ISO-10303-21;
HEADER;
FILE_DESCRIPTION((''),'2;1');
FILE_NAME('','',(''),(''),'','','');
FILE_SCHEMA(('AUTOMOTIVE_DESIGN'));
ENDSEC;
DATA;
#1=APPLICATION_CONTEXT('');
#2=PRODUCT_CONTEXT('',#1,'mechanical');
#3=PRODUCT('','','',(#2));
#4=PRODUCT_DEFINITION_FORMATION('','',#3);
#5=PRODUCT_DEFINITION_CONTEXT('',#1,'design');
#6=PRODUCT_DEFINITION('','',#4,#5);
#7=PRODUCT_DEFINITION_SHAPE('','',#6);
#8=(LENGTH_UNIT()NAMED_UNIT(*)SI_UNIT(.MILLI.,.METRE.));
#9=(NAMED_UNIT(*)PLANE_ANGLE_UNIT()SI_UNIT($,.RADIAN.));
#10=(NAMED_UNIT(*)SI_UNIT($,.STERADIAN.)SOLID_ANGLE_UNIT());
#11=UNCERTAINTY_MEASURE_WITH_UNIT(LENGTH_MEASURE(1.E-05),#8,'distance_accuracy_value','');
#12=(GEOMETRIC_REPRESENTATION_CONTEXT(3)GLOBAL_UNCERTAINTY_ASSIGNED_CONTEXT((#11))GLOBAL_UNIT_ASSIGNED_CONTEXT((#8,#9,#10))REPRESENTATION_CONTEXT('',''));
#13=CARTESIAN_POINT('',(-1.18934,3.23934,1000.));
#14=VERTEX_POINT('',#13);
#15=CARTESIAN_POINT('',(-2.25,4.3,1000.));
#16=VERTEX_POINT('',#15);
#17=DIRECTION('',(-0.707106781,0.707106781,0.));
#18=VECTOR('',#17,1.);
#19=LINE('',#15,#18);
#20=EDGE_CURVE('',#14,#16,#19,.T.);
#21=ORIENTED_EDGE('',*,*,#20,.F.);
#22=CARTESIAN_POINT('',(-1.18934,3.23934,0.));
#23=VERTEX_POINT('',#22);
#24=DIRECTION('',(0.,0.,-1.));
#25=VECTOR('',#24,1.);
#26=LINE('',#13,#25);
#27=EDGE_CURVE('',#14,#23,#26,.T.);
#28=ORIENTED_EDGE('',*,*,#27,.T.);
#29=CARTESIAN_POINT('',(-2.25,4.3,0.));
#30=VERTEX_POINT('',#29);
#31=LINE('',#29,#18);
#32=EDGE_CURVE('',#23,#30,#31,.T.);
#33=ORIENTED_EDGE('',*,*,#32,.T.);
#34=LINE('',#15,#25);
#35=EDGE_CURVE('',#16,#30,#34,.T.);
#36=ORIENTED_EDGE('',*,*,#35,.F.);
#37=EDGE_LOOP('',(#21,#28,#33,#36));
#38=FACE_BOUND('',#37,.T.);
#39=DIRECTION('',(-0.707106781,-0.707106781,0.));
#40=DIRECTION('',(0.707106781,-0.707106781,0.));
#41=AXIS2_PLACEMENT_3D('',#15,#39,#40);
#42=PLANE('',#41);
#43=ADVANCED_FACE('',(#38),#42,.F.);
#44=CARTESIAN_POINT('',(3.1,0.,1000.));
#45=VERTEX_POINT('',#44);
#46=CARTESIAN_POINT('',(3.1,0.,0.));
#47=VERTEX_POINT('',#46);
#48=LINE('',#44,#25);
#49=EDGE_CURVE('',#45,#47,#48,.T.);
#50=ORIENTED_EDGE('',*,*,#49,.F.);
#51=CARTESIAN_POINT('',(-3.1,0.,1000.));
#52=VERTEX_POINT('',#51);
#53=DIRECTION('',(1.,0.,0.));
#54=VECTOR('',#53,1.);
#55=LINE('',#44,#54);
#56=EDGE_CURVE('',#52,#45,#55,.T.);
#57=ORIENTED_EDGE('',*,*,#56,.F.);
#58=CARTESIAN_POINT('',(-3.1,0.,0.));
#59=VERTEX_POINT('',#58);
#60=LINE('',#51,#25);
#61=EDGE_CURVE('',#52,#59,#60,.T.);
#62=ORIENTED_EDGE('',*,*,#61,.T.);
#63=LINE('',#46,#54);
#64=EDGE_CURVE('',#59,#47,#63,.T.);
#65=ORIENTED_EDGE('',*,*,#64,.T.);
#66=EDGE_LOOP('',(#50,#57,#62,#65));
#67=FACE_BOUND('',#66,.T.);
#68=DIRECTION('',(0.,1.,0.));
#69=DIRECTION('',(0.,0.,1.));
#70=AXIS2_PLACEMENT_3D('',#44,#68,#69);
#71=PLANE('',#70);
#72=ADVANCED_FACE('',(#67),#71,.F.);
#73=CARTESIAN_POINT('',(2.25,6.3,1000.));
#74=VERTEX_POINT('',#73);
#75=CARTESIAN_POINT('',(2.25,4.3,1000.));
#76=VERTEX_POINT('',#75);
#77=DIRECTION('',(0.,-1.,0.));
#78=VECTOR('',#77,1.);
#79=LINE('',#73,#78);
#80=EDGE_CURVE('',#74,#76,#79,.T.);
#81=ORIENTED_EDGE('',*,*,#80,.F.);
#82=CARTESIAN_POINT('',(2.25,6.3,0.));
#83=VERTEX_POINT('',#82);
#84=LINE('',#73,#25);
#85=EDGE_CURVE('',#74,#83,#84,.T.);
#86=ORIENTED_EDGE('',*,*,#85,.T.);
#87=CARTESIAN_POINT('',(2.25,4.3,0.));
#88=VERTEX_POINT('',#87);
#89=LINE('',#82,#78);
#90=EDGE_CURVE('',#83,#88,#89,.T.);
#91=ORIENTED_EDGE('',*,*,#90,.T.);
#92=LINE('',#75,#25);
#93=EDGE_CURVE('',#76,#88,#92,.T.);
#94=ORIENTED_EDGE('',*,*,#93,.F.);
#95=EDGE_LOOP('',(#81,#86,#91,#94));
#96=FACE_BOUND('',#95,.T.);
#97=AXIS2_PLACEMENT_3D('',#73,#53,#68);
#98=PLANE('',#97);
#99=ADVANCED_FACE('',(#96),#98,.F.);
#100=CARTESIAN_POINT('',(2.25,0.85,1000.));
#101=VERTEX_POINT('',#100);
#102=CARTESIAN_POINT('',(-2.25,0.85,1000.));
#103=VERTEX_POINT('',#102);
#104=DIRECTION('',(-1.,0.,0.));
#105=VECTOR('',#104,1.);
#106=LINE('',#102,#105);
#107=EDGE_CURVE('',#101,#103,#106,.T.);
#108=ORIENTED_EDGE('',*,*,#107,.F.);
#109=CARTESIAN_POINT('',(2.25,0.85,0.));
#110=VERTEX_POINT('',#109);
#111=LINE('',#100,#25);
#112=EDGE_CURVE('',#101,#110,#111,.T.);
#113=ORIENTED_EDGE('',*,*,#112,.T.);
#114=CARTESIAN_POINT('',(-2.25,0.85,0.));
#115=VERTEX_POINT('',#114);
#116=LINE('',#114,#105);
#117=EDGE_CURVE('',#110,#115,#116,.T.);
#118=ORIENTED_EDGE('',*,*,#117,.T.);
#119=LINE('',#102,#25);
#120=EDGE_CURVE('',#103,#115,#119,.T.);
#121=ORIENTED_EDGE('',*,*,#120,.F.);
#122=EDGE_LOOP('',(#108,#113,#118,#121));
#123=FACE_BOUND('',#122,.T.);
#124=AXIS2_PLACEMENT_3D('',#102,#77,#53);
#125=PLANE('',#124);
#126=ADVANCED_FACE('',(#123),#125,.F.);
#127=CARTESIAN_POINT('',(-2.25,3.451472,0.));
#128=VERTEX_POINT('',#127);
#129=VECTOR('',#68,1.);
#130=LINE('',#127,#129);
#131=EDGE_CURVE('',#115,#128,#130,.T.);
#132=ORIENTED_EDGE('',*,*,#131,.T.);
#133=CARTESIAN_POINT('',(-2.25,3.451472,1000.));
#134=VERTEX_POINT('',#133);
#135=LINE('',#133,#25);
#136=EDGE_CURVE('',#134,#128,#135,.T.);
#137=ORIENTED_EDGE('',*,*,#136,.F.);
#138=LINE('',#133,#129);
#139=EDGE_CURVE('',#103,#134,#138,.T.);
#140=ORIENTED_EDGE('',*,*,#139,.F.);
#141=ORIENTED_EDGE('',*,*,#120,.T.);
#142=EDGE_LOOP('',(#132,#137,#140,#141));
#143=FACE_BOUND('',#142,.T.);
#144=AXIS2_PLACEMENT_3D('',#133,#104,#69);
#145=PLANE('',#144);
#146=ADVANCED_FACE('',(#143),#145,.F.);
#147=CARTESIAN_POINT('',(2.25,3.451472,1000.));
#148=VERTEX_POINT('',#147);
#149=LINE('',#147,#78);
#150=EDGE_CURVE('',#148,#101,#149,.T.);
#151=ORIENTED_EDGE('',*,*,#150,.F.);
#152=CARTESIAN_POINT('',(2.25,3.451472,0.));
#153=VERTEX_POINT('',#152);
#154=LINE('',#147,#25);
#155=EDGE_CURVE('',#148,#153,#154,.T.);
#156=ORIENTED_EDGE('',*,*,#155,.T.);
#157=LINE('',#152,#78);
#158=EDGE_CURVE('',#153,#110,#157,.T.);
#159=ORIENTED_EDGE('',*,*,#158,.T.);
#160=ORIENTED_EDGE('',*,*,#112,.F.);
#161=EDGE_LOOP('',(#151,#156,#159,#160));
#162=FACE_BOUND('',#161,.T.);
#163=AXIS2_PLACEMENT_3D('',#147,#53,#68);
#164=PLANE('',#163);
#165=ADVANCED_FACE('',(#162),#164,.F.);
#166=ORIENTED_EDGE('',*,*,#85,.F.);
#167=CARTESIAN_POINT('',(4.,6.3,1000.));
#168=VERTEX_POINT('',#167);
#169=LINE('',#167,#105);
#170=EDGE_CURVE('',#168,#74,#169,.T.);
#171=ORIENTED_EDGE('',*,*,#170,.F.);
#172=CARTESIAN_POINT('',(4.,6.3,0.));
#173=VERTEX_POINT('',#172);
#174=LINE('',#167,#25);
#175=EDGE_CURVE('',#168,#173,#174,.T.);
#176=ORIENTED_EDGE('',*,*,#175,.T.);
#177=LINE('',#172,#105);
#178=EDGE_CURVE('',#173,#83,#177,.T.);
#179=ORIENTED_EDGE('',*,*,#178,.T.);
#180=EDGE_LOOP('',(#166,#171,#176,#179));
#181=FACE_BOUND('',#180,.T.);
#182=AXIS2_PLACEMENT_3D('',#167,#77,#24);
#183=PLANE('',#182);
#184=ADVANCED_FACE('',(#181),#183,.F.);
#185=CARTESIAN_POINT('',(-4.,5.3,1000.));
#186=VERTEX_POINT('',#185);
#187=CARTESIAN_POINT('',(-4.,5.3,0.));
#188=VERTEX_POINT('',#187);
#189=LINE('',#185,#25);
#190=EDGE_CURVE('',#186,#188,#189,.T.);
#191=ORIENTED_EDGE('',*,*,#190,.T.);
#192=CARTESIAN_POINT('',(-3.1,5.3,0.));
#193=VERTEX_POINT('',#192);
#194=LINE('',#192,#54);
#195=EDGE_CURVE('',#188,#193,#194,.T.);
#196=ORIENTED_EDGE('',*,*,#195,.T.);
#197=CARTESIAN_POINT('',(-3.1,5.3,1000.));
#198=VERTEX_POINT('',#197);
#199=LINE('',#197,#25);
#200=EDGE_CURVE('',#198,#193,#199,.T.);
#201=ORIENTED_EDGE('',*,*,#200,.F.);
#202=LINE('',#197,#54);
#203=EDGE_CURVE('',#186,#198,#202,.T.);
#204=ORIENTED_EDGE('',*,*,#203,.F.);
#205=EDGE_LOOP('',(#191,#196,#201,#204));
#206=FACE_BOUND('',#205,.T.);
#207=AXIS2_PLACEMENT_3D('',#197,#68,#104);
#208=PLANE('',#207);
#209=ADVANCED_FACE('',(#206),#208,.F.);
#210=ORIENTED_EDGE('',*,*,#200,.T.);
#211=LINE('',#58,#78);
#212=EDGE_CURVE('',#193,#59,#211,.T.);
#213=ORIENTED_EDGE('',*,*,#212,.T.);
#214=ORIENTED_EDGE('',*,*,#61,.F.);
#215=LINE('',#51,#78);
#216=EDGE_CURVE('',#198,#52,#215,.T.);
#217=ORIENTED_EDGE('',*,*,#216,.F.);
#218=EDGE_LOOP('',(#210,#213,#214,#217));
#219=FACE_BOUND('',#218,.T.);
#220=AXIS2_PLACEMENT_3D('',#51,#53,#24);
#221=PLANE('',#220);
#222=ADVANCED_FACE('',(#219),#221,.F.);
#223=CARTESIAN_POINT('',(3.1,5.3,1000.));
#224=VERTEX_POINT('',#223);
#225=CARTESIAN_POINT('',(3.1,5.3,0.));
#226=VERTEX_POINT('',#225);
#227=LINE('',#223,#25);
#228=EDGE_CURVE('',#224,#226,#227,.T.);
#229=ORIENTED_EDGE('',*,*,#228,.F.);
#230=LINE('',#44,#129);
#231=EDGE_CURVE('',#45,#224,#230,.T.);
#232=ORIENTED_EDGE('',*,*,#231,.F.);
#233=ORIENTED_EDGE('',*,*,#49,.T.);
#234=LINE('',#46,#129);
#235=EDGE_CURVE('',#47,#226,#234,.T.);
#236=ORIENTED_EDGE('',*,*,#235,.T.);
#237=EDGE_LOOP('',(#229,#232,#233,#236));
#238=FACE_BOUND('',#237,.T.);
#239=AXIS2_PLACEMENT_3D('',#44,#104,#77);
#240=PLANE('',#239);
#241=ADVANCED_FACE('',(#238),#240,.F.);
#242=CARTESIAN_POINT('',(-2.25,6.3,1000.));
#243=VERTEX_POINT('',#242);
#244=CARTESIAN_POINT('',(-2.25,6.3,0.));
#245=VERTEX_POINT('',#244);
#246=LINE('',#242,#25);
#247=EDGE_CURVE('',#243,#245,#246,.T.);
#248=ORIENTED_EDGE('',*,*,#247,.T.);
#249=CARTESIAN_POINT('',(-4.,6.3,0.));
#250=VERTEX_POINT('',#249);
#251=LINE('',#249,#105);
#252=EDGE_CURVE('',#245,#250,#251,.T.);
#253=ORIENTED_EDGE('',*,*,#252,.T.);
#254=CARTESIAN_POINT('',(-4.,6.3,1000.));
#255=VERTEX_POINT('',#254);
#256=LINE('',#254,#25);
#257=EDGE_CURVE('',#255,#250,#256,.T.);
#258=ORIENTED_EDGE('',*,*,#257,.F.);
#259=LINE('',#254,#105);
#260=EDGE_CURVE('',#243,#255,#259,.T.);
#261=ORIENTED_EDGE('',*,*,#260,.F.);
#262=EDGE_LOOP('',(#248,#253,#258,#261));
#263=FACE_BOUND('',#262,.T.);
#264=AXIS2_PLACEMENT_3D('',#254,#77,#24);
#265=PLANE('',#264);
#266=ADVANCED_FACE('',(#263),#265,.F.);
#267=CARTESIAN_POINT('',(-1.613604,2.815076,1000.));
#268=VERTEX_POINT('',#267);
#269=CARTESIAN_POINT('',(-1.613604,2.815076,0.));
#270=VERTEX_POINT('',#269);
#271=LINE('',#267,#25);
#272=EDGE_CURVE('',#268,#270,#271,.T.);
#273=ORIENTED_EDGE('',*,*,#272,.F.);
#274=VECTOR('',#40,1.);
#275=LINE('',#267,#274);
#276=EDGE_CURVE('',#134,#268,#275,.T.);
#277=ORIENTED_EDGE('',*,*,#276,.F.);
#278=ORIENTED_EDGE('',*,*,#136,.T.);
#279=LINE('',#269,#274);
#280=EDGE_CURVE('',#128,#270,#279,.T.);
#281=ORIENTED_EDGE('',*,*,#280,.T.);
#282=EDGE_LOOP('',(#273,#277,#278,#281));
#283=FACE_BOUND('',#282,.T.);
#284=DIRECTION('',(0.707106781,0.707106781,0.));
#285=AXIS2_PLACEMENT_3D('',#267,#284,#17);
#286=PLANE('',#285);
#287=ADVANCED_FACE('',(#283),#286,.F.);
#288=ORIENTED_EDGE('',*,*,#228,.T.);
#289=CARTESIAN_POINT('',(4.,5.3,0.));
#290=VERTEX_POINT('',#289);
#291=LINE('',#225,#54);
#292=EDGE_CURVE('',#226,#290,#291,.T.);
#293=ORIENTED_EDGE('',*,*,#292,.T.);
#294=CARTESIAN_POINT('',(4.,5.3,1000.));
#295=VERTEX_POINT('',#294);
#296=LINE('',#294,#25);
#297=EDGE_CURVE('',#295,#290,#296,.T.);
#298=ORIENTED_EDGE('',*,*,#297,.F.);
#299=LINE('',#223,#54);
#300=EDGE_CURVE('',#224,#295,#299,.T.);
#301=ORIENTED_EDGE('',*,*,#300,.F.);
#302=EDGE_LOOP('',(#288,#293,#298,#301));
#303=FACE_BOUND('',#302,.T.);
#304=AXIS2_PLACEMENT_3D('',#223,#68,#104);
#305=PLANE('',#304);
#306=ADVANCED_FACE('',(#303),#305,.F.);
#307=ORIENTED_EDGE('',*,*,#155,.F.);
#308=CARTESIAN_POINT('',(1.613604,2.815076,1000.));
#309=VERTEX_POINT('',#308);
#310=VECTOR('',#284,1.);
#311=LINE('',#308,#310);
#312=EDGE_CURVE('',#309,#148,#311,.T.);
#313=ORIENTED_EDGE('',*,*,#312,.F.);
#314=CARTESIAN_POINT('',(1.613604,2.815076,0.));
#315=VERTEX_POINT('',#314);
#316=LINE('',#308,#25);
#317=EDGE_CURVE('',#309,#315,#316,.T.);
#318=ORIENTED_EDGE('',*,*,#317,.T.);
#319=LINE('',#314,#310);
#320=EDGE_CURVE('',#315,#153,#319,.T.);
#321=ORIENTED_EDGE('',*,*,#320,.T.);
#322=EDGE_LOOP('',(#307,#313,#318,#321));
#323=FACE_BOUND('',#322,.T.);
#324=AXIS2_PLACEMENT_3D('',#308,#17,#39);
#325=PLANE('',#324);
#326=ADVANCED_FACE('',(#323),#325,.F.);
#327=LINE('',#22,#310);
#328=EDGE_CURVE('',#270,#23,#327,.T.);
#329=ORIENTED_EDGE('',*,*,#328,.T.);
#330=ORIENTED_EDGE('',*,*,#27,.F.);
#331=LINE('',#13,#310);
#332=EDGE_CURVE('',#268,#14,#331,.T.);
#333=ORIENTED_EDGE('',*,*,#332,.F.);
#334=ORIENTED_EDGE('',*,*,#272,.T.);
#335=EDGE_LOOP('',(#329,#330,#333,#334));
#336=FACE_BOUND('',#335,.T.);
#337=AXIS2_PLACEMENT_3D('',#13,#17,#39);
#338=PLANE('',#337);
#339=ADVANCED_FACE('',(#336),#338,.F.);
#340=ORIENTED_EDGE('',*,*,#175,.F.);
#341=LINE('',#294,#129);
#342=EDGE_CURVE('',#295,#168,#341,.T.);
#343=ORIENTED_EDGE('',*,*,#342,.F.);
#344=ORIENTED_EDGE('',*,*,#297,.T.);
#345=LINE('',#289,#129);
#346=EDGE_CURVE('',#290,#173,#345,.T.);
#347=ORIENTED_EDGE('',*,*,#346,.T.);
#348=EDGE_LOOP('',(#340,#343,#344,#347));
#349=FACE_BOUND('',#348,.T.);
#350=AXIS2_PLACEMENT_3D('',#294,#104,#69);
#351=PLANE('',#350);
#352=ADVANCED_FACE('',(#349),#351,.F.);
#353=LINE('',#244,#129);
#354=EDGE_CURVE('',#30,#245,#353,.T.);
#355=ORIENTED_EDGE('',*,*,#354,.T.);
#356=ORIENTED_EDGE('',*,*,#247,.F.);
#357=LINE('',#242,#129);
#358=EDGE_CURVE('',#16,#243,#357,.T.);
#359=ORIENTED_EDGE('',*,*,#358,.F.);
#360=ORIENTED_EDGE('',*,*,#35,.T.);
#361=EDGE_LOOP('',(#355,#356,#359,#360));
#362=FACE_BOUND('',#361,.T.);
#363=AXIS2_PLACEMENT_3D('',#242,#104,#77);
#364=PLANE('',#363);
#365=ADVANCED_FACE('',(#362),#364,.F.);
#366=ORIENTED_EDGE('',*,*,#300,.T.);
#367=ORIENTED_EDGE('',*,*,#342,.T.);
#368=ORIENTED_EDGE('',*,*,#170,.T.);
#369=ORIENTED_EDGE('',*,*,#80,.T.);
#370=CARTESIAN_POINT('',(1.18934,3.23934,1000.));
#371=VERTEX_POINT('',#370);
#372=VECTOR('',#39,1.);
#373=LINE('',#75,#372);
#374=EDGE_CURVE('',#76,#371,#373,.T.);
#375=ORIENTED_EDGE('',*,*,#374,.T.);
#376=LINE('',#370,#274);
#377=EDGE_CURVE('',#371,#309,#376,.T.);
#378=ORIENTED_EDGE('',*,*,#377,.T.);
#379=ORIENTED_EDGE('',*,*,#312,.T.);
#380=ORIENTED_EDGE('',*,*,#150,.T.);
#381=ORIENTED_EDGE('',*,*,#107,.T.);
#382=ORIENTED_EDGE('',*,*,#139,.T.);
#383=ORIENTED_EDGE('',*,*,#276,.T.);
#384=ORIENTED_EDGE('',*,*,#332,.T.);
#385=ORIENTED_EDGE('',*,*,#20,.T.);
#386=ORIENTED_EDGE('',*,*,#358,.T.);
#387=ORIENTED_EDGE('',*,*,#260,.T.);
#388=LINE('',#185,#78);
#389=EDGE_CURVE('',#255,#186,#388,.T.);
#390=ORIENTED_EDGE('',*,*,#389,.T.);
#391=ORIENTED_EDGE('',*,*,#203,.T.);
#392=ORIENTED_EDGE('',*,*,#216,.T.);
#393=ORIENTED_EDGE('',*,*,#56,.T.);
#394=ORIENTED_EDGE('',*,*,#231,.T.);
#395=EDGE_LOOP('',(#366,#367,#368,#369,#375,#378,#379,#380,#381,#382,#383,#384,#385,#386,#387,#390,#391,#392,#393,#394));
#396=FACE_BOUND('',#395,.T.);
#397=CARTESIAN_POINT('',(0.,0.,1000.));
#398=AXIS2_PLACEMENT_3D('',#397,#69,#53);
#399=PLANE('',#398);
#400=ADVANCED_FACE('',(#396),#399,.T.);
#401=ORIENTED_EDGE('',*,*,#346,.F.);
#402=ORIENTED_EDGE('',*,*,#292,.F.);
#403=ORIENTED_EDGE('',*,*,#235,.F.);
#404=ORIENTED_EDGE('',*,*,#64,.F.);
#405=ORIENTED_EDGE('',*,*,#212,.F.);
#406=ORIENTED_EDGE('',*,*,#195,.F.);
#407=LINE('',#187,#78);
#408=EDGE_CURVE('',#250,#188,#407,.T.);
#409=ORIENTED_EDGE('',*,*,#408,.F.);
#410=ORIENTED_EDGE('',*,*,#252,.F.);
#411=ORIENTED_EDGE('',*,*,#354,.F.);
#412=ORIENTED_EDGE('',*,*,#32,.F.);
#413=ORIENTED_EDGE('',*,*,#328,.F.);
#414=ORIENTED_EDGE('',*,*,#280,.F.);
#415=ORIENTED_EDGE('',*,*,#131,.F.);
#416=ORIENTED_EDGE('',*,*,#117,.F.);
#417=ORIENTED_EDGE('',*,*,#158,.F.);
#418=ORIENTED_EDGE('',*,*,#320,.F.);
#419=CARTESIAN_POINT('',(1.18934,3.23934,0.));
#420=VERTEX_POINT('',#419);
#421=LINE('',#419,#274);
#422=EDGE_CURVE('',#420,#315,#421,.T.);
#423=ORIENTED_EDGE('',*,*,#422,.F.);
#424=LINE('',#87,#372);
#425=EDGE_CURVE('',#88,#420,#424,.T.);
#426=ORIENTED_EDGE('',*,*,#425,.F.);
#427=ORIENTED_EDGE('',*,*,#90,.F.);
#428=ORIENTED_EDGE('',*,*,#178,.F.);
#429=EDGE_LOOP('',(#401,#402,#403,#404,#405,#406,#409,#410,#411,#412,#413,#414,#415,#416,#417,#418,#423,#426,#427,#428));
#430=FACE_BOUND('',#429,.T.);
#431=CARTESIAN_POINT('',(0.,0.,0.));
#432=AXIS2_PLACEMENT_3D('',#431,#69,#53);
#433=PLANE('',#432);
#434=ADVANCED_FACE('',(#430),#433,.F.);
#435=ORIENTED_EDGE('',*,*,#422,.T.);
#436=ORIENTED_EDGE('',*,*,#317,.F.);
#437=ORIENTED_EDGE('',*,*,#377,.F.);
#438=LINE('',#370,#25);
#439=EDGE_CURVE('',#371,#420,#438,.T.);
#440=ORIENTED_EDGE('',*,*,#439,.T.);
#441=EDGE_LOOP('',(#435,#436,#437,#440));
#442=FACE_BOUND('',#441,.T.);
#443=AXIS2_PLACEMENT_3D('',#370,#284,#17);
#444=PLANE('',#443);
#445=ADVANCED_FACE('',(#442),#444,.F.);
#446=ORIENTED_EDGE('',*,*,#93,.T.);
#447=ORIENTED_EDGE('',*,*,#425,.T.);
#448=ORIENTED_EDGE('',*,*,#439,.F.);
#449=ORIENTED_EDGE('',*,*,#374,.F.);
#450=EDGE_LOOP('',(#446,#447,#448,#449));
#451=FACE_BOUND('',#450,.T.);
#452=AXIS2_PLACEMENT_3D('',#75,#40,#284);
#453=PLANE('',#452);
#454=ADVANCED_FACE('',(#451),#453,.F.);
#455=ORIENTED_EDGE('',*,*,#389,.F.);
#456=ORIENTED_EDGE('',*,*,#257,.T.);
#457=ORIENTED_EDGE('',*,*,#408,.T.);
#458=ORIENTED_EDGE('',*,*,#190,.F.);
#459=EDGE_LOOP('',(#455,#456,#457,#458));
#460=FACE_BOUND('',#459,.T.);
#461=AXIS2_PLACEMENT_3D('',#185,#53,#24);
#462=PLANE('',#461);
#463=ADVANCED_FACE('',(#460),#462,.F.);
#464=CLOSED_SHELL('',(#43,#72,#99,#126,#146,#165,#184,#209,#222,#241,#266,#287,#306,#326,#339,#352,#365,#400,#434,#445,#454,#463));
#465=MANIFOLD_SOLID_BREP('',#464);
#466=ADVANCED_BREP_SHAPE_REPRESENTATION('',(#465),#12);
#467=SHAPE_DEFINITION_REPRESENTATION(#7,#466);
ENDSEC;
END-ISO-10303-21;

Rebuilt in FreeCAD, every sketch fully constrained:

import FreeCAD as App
import Part
import Sketcher

V = App.Vector


def add_polygon(sketch, points):
    """Adds a closed chain of lines whose ends are joined by coincident constraints."""
    first, n = sketch.GeometryCount, len(points)
    for a, b in zip(points, points[1:] + points[:1]):
        sketch.addGeometry(Part.LineSegment(App.Vector(*a, 0), App.Vector(*b, 0)), False)
    for i in range(n):
        sketch.addConstraint(Sketcher.Constraint("Coincident", first + i, 2, first + (i + 1) % n, 1))

doc = App.newDocument("Part")
params = doc.addObject("Spreadsheet::Sheet", "Params")
for row, (alias, value) in enumerate([
    ("sketch1_height", "1 mm"),
    ("sketch1_height2", "2 mm"),
    ("sketch1_width", "6.2 mm"),
    ("sketch1_width2", "0.9 mm"),
    ("sketch1_width3", "4.5 mm"),
    ("pad1_length", "1000 mm"),
], start=1):
    params.set(f"A{row}", alias)
    params.set(f"B{row}", "=" + value)
    params.setAlias(f"B{row}", alias)

body = doc.addObject("PartDesign::Body", "Body")

sketch1 = doc.addObject("Sketcher::SketchObject", "Sketch")
body.addObject(sketch1)
sketch1.AttachmentSupport = (doc.XY_Plane, [""])
sketch1.MapMode = "FlatFace"
add_polygon(sketch1, [(-3.1, 0), (3.1, 0), (3.1, 5.3), (4, 5.3), (4, 6.3), (2.25, 6.3), (2.25, 4.3), (1.18934, 3.23934), (1.613604, 2.815076), (2.25, 3.451472), (2.25, 0.85), (-2.25, 0.85), (-2.25, 3.451472), (-1.613604, 2.815076), (-1.18934, 3.23934), (-2.25, 4.3), (-2.25, 6.3), (-4, 6.3), (-4, 5.3), (-3.1, 5.3)])
sketch1.addConstraint([
    Sketcher.Constraint("Horizontal", 0),
    Sketcher.Constraint("Vertical", 1),
    Sketcher.Constraint("Horizontal", 2),
    Sketcher.Constraint("Vertical", 3),
    Sketcher.Constraint("Horizontal", 4),
    Sketcher.Constraint("Vertical", 5),
    Sketcher.Constraint("Vertical", 9),
    Sketcher.Constraint("Horizontal", 10),
    Sketcher.Constraint("Vertical", 11),
    Sketcher.Constraint("Vertical", 15),
    Sketcher.Constraint("Horizontal", 16),
    Sketcher.Constraint("Vertical", 17),
    Sketcher.Constraint("Horizontal", 18),
    Sketcher.Constraint("Vertical", 19),
    Sketcher.Constraint("Symmetric", 0, 2, 19, 2, -1, 1),
    Sketcher.Constraint("Symmetric", 8, 2, 11, 2, -2),
    Sketcher.Constraint("Symmetric", 7, 2, 12, 2, -2),
    Sketcher.Constraint("Symmetric", 6, 2, 13, 2, -2),
    Sketcher.Constraint("Symmetric", 5, 2, 14, 2, -2),
    Sketcher.Constraint("Symmetric", 3, 2, 16, 2, -2),
    Sketcher.Constraint("Perpendicular", 6, 7),
    Sketcher.Constraint("Perpendicular", 7, 8),
    Sketcher.Constraint("Perpendicular", 8, 12),
    Sketcher.Constraint("Horizontal", 2, 2, 17, 2),
    Sketcher.Constraint("Vertical", 5, 2, 8, 2),
    Sketcher.Constraint("DistanceY", 3, 1, 3, 2, 1.0),
    Sketcher.Constraint("DistanceY", 5, 2, 5, 1, 2.0),
    Sketcher.Constraint("DistanceX", 0, 1, 0, 2, 6.2),
    Sketcher.Constraint("DistanceX", 2, 1, 2, 2, 0.9),
    Sketcher.Constraint("DistanceX", 10, 2, 10, 1, 4.5),
    Sketcher.Constraint("DistanceY", 1, 1, 1, 2, 5.3),
    Sketcher.Constraint("Distance", 6, 1.5),
    Sketcher.Constraint("Distance", 7, 0.6),
    Sketcher.Constraint("DistanceY", -1, 1, 9, 2, 0.85),
])
sketch1.setExpression("Constraints[45]", "Params.sketch1_height")
sketch1.setExpression("Constraints[46]", "Params.sketch1_height2")
sketch1.setExpression("Constraints[47]", "Params.sketch1_width")
sketch1.setExpression("Constraints[48]", "Params.sketch1_width2")
sketch1.setExpression("Constraints[49]", "Params.sketch1_width3")
pad1 = doc.addObject("PartDesign::Pad", "Pad")
body.addObject(pad1)
pad1.Profile = sketch1
pad1.setExpression("Length", "Params.pad1_length")

doc.recompute()
